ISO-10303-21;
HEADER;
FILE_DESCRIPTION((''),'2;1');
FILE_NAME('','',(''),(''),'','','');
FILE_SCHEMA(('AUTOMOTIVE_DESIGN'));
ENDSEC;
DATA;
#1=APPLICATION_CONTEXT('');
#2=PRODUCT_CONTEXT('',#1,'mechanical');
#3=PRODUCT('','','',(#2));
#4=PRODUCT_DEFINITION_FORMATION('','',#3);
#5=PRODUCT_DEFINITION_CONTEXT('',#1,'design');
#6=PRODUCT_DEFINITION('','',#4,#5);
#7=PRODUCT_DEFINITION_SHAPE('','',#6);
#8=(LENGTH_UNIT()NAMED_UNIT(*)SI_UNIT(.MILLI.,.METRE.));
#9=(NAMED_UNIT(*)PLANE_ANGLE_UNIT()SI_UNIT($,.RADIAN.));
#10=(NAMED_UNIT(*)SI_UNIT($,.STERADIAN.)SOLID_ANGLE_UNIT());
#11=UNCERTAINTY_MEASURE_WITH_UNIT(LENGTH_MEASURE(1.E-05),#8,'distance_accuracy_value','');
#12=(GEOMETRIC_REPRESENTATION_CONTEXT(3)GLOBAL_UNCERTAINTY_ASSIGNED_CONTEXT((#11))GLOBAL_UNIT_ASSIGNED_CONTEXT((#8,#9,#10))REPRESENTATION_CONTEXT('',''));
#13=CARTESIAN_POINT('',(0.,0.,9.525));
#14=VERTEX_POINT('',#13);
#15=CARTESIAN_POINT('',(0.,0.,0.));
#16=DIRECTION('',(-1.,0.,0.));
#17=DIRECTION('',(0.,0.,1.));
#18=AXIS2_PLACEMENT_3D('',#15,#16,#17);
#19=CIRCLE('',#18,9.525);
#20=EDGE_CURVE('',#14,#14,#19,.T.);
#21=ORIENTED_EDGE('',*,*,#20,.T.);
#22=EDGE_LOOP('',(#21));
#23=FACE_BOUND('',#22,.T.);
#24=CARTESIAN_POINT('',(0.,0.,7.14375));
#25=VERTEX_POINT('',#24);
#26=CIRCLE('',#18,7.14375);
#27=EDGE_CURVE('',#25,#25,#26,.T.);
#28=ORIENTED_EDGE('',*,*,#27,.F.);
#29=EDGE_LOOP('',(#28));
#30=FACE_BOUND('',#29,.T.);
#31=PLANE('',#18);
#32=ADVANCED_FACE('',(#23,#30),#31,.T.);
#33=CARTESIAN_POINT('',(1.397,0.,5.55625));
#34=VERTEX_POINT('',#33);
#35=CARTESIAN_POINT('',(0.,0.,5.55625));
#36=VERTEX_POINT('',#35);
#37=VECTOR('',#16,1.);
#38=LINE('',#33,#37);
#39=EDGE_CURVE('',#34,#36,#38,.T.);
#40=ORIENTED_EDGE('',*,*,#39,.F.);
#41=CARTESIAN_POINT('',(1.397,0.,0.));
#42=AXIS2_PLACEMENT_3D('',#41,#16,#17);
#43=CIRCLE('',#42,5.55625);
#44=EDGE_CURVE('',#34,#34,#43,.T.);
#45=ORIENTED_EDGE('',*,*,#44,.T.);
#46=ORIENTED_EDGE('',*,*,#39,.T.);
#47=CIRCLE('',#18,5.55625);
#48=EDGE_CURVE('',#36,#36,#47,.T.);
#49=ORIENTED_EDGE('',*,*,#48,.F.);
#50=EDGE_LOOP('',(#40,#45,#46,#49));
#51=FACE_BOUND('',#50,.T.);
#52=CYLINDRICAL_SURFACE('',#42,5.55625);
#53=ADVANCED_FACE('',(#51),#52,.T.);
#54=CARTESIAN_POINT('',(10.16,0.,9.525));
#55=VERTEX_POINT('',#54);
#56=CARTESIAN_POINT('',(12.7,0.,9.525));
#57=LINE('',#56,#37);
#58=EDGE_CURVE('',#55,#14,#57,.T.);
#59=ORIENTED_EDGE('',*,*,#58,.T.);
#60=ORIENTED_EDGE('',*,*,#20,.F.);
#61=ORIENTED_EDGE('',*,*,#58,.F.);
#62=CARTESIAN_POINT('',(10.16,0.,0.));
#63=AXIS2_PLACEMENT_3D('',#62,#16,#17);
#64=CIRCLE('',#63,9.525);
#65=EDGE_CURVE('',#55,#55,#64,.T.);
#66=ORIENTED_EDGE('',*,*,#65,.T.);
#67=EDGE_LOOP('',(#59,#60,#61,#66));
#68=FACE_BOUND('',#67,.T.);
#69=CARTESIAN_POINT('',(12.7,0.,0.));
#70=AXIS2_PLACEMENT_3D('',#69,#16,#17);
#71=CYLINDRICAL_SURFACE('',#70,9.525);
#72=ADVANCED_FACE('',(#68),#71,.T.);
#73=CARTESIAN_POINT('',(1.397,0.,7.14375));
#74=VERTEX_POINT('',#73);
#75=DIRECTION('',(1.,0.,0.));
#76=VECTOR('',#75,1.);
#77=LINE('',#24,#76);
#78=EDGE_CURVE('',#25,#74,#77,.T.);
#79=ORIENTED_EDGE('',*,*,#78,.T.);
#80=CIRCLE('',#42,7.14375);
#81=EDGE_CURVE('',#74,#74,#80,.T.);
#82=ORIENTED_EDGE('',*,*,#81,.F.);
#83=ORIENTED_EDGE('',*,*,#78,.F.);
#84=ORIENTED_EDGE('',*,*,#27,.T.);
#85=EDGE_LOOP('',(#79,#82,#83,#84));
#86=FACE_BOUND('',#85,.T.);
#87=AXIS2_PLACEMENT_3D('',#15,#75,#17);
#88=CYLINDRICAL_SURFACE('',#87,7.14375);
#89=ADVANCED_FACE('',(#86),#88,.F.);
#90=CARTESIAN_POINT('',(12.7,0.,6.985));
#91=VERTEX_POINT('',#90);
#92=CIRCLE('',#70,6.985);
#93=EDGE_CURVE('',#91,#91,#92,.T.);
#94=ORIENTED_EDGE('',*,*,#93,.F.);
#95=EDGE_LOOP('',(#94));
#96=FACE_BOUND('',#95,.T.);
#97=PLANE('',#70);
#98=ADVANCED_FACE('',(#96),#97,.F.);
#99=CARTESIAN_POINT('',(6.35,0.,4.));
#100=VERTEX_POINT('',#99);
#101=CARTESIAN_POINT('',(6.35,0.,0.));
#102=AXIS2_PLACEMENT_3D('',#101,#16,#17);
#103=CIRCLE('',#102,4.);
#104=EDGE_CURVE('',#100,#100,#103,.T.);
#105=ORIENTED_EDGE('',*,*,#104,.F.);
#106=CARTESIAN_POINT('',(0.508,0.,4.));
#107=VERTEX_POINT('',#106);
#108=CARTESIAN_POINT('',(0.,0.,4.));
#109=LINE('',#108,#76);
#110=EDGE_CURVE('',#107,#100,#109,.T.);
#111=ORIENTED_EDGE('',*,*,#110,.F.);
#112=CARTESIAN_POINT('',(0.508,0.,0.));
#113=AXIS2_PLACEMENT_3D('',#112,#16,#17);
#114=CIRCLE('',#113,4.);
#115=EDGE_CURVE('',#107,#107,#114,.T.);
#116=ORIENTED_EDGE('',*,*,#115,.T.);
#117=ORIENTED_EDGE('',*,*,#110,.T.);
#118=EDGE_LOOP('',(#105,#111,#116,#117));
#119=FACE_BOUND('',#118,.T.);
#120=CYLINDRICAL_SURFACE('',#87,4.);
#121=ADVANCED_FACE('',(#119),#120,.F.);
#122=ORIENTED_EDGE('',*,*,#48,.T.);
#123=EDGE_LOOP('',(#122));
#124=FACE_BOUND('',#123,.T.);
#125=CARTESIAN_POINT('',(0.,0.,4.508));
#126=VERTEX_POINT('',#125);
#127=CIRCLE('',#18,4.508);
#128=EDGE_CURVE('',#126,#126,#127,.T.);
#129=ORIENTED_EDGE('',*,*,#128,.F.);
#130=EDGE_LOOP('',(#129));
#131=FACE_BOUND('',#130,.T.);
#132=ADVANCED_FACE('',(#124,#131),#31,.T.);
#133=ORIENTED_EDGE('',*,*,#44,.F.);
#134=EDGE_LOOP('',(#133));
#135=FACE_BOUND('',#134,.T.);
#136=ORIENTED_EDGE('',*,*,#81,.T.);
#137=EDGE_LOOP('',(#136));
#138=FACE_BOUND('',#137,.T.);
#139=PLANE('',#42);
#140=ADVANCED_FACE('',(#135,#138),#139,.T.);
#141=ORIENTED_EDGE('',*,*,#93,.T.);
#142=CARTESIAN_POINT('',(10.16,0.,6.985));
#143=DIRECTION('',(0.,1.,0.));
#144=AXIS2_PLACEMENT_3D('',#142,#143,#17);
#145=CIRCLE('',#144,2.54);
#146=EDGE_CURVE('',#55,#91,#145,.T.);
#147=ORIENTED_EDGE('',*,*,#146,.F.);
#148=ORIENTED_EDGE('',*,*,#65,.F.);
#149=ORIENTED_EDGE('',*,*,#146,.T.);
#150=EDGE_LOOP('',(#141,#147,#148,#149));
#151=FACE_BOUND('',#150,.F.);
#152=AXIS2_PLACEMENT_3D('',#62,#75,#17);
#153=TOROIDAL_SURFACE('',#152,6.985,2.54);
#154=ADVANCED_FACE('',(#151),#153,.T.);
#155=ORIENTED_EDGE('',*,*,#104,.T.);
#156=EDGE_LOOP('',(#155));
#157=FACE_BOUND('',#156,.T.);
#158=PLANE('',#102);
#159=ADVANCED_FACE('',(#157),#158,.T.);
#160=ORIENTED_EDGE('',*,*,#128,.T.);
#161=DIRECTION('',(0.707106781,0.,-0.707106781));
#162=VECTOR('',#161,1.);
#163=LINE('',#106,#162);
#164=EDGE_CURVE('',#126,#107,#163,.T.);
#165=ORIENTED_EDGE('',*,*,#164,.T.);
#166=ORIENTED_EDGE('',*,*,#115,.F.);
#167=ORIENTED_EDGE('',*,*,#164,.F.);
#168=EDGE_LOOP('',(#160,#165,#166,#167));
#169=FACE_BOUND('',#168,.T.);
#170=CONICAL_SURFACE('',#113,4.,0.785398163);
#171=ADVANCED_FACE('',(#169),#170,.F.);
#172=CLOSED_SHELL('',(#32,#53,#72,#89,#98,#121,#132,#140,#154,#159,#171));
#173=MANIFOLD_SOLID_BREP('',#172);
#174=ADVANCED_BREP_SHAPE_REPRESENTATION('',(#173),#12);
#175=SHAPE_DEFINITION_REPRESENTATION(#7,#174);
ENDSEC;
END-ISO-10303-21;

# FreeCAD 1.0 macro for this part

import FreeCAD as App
import Part
import Sketcher

V = App.Vector
Q = App.Units.Quantity


def edges_at(feature, points):
    """Names of the edges that pass closest to the given points."""
    edges = feature.Shape.Edges
    near = lambda p: min(range(len(edges)), key=lambda i: edges[i].distToShape(Part.Vertex(*p))[0])
    return sorted({f"Edge{near(p) + 1}" for p in points})

doc = App.newDocument("Part")
params = doc.addObject("Spreadsheet::Sheet", "Params")
for row, (alias, value) in enumerate([
    ("sketch1_width", "0.5 in"),
    ("sketch1_width2", "0.055 in"),
    ("sketch1_height", "0.375 in"),
    ("sketch1_height2", "0.09375 in"),
    ("sketch1_height3", "0.0625 in"),
    ("revolution_angle", "360 deg"),
    ("chamfer_size", "0.02 in"),
    ("fillet_radius", "0.1 in"),
], start=1):
    params.set(f"A{row}", alias)
    params.set(f"B{row}", "=" + value)
    params.setAlias(f"B{row}", alias)

body = doc.addObject("PartDesign::Body", "Body")

# Sketch on XZ plane
sketch1 = doc.addObject("Sketcher::SketchObject", "Sketch")
body.addObject(sketch1)
sketch1.AttachmentSupport = (doc.XZ_Plane, [""])
sketch1.MapMode = "FlatFace"
sketch1.addGeometry([
    Part.LineSegment(V(0, 5.55625, 0), V(0, 4, 0)),  # 0
    Part.LineSegment(V(0, 4, 0), V(6.35, 4, 0)),  # 1
    Part.LineSegment(V(6.35, 4, 0), V(6.35, 0, 0)),  # 2
    Part.LineSegment(V(6.35, 0, 0), V(12.7, 0, 0)),  # 3
    Part.LineSegment(V(12.7, 0, 0), V(12.7, 9.525, 0)),  # 4
    Part.LineSegment(V(12.7, 9.525, 0), V(0, 9.525, 0)),  # 5
    Part.LineSegment(V(0, 9.525, 0), V(0, 7.14375, 0)),  # 6
    Part.LineSegment(V(0, 7.14375, 0), V(1.397, 7.14375, 0)),  # 7
    Part.LineSegment(V(1.397, 7.14375, 0), V(1.397, 5.55625, 0)),  # 8
    Part.LineSegment(V(1.397, 5.55625, 0), V(0, 5.55625, 0)),  # 9
], False)
sketch1.addConstraint([
    Sketcher.Constraint("Coincident", 0, 2, 1, 1),
    Sketcher.Constraint("Coincident", 1, 2, 2, 1),
    Sketcher.Constraint("Coincident", 2, 2, 3, 1),
    Sketcher.Constraint("Coincident", 3, 2, 4, 1),
    Sketcher.Constraint("Coincident", 4, 2, 5, 1),
    Sketcher.Constraint("Coincident", 5, 2, 6, 1),
    Sketcher.Constraint("Coincident", 6, 2, 7, 1),
    Sketcher.Constraint("Coincident", 7, 2, 8, 1),
    Sketcher.Constraint("Coincident", 8, 2, 9, 1),
    Sketcher.Constraint("Coincident", 9, 2, 0, 1),
    Sketcher.Constraint("Vertical", 0),
    Sketcher.Constraint("Horizontal", 1),
    Sketcher.Constraint("Vertical", 2),
    Sketcher.Constraint("Horizontal", 3),
    Sketcher.Constraint("Vertical", 4),
    Sketcher.Constraint("Horizontal", 5),
    Sketcher.Constraint("Vertical", 6),
    Sketcher.Constraint("Horizontal", 7),
    Sketcher.Constraint("Vertical", 8),
    Sketcher.Constraint("Horizontal", 9),
    Sketcher.Constraint("PointOnObject", 0, 2, -2),
    Sketcher.Constraint("PointOnObject", 2, 2, -1),
    Sketcher.Constraint("PointOnObject", 5, 2, -2),
    Sketcher.Constraint("Equal", 1, 3),
    Sketcher.Constraint("DistanceX", 5, 2, 5, 1, Q("0.5 in")),
    Sketcher.Constraint("DistanceX", 7, 1, 7, 2, Q("0.055 in")),
    Sketcher.Constraint("DistanceY", 4, 1, 4, 2, Q("0.375 in")),
    Sketcher.Constraint("DistanceY", 6, 2, 6, 1, Q("0.09375 in")),
    Sketcher.Constraint("DistanceY", 8, 2, 8, 1, Q("0.0625 in")),
    Sketcher.Constraint("DistanceY", 2, 2, 2, 1, Q("4 mm")),
])
sketch1.setExpression("Constraints[24]", "Params.sketch1_width")
sketch1.setExpression("Constraints[25]", "Params.sketch1_width2")
sketch1.setExpression("Constraints[26]", "Params.sketch1_height")
sketch1.setExpression("Constraints[27]", "Params.sketch1_height2")
sketch1.setExpression("Constraints[28]", "Params.sketch1_height3")
revolution = doc.addObject("PartDesign::Revolution", "Revolution")
body.addObject(revolution)
revolution.Profile = sketch1
revolution.ReferenceAxis = (sketch1, ["H_Axis"])
revolution.setExpression("Angle", "Params.revolution_angle")
doc.recompute()

chamfer = doc.addObject("PartDesign::Chamfer", "Chamfer")
body.addObject(chamfer)
chamfer.Base = (revolution, edges_at(revolution, [(0, 0, -4)]))
chamfer.setExpression("Size", "Params.chamfer_size")
doc.recompute()

fillet = doc.addObject("PartDesign::Fillet", "Fillet")
body.addObject(fillet)
fillet.Base = (chamfer, edges_at(chamfer, [(12.7, 0, -9.525)]))
fillet.setExpression("Radius", "Params.fillet_radius")

doc.recompute()
